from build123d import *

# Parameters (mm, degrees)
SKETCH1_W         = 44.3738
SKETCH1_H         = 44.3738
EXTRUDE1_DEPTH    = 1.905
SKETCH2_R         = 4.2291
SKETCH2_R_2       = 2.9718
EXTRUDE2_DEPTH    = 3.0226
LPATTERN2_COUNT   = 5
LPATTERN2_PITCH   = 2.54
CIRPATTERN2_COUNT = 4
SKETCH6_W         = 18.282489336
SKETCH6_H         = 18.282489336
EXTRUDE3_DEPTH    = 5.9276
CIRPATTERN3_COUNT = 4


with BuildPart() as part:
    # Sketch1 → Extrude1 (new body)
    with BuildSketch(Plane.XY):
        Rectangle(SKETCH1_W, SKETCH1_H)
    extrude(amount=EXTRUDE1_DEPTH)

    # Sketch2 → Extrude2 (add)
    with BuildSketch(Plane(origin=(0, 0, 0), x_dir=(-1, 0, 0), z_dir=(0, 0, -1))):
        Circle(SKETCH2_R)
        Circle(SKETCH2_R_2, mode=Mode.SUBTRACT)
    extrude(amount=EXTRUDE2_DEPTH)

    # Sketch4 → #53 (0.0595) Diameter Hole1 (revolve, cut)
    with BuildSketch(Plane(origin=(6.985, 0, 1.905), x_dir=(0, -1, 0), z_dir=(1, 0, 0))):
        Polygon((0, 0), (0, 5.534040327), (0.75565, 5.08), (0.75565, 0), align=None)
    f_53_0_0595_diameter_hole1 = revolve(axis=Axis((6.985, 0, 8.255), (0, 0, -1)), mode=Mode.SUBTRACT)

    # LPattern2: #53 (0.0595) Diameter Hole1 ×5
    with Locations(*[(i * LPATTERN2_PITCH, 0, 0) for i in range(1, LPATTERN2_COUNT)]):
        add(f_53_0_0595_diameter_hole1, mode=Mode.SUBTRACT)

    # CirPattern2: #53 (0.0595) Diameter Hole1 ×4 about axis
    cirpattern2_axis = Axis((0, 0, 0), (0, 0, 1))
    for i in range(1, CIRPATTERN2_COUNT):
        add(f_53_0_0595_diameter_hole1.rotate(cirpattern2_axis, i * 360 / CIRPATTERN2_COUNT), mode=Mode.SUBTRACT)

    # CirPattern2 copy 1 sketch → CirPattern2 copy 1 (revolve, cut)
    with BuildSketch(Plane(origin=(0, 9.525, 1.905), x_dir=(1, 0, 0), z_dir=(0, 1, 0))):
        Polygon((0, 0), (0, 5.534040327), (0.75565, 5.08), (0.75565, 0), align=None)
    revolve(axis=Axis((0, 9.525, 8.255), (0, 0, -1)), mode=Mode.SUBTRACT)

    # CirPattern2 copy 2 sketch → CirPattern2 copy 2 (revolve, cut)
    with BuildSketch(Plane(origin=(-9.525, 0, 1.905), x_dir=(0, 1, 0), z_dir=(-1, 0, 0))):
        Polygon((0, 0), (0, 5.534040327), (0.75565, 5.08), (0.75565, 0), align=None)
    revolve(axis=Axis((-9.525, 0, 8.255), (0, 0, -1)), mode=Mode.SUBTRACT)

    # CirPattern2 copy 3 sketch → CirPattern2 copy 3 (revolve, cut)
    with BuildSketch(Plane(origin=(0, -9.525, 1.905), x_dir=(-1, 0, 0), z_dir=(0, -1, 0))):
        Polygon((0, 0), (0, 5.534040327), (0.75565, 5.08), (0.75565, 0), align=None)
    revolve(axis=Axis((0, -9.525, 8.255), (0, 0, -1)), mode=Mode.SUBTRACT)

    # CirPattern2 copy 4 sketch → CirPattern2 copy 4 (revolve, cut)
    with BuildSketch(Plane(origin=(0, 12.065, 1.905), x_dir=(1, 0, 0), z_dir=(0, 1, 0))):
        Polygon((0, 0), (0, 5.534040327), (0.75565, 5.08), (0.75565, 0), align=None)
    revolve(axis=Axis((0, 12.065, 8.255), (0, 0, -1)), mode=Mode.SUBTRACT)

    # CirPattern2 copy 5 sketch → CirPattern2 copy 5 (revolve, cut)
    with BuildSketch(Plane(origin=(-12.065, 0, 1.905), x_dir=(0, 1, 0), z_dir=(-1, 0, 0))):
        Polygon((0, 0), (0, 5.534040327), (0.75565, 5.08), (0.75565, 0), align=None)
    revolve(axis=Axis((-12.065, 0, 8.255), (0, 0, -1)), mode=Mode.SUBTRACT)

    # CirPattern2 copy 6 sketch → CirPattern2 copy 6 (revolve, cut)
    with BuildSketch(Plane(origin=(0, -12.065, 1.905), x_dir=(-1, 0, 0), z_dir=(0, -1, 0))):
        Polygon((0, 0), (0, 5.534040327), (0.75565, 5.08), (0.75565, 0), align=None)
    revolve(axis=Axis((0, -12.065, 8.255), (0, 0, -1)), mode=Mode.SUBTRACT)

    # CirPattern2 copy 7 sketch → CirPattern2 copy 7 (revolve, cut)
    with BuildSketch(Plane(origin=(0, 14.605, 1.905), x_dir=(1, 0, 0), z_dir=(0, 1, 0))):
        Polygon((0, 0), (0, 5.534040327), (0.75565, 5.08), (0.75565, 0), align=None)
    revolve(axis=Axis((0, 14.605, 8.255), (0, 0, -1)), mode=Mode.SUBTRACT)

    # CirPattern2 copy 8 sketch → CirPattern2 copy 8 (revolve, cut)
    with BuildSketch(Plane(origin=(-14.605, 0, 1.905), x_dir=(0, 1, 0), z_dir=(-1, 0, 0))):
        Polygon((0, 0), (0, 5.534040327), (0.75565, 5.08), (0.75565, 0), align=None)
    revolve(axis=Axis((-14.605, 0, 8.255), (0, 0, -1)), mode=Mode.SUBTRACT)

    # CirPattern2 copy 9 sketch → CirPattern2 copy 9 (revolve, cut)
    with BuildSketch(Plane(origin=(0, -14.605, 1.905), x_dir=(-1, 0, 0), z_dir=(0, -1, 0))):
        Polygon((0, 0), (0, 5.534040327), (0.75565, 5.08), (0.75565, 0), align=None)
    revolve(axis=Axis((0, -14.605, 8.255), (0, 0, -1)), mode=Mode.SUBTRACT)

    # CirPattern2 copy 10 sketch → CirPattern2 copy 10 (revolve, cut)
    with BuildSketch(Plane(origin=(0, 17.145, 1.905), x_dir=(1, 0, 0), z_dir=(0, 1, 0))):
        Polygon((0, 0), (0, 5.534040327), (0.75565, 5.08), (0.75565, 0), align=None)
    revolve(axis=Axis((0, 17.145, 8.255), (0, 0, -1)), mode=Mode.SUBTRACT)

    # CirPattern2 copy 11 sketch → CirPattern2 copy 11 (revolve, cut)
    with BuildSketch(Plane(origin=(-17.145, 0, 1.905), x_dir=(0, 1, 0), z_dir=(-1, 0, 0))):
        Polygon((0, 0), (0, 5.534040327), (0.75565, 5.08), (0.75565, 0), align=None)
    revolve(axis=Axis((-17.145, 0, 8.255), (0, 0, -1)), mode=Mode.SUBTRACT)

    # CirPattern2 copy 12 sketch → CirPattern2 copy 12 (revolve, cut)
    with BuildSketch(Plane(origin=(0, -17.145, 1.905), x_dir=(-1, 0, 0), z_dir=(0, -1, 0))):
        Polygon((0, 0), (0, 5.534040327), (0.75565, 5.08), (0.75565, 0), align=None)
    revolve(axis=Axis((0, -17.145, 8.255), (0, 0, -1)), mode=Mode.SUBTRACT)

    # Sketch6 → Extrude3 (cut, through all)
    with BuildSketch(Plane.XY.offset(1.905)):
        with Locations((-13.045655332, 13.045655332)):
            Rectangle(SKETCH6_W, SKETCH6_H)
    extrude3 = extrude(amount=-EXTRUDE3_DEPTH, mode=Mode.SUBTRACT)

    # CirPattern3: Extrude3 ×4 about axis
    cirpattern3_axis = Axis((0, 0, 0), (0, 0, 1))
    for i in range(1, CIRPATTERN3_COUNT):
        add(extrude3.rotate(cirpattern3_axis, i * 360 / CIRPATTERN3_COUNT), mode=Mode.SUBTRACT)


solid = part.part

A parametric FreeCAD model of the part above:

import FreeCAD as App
import Part
import Sketcher

V = App.Vector
Q = App.Units.Quantity


def add_polygon(sketch, points):
    """Adds a closed chain of lines whose ends are joined by coincident constraints."""
    first, n = sketch.GeometryCount, len(points)
    for a, b in zip(points, points[1:] + points[:1]):
        sketch.addGeometry(Part.LineSegment(App.Vector(*a, 0), App.Vector(*b, 0)), False)
    for i in range(n):
        sketch.addConstraint(Sketcher.Constraint("Coincident", first + i, 2, first + (i + 1) % n, 1))

doc = App.newDocument("Part")
body = doc.addObject("PartDesign::Body", "Body")

# Sketch on XY plane
sketch1 = body.newObject("Sketcher::SketchObject", "Sketch")
sketch1.AttachmentSupport = (doc.getObject("XY_Plane"), [""])
sketch1.MapMode = "FlatFace"
add_polygon(sketch1, [(-22, 22), (-22, -22), (22, -22), (22, 22)])  # lines 0-3
sketch1.addConstraint([
    Sketcher.Constraint("Vertical", 0),
    Sketcher.Constraint("Horizontal", 1),
    Sketcher.Constraint("Vertical", 2),
    Sketcher.Constraint("Horizontal", 3),
    Sketcher.Constraint("Symmetric", 0, 2, 2, 2, -1, 1),
    Sketcher.Constraint("Equal", 3, 0),
    Sketcher.Constraint("DistanceX", 1, 1, 1, 2, Q("1.747 in")),
])
pad1 = body.newObject("PartDesign::Pad", "Pad")
pad1.Profile = sketch1
pad1.Length = Q("0.075 in")

# Sketch on XY plane
sketch2 = body.newObject("Sketcher::SketchObject", "Sketch001")
sketch2.AttachmentSupport = (doc.getObject("XY_Plane"), [""])
sketch2.MapMode = "FlatFace"
sketch2.addGeometry([
    Part.Circle(V(0, 0, 0), V(0, 0, 1), 4.2),
    Part.Circle(V(0, 0, 0), V(0, 0, 1), 3),
], False)
sketch2.addConstraint([
    Sketcher.Constraint("Coincident", 0, 3, -1, 1),
    Sketcher.Constraint("Coincident", 1, 3, -1, 1),
    Sketcher.Constraint("Diameter", 0, Q("0.333 in")),
    Sketcher.Constraint("Diameter", 1, Q("0.234 in")),
])
pad2 = body.newObject("PartDesign::Pad", "Pad001")
pad2.Profile = sketch2
pad2.Length = Q("0.119 in")
pad2.Reversed = True

# Sketch on YZ plane
sketch3 = body.newObject("Sketcher::SketchObject", "Sketch002")
sketch3.AttachmentSupport = (doc.getObject("YZ_Plane"), [""])
sketch3.MapMode = "FlatFace"
sketch3.AttachmentOffset = App.Placement(V(0, 0, 0.275 * 25.4), App.Rotation())
add_polygon(sketch3, [(0, -3.6), (0, 1.9), (-0.8, 1.9), (-0.8, -3.2)])  # lines 0-3
sketch3.addConstraint([
    Sketcher.Constraint("Vertical", 0),
    Sketcher.Constraint("Horizontal", 1),
    Sketcher.Constraint("Vertical", 2),
    Sketcher.Constraint("PointOnObject", 0, 2, -2),
    Sketcher.Constraint("DistanceY", 2, 2, 2, 1, Q("0.2 in")),
    Sketcher.Constraint("Angle", 3, Q("-31 deg")),
    Sketcher.Constraint("DistanceY", -1, 1, 0, 2, Q("0.075 in")),
    Sketcher.Constraint("DistanceX", 1, 2, 1, 1, Q("0.75565 mm")),
])
groove = body.newObject("PartDesign::Groove", "Groove")
groove.Profile = sketch3
groove.ReferenceAxis = (sketch3, ["V_Axis"])
groove.Angle = 360
doc.recompute()

linearpattern = body.newObject("PartDesign::LinearPattern", "LinearPattern")
linearpattern.Originals = [groove]
linearpattern.Direction = (doc.getObject("X_Axis"), [""])
linearpattern.Mode = "offset"
linearpattern.Offset = Q("0.1 in")
linearpattern.Occurrences = 5
body.Tip = linearpattern
doc.recompute()

polarpattern = body.newObject("PartDesign::PolarPattern", "PolarPattern")
polarpattern.Originals = [groove]
polarpattern.Axis = (doc.getObject("Z_Axis"), [""])
polarpattern.Angle = 360
polarpattern.Occurrences = 4
body.Tip = polarpattern

# Sketch on XZ plane
sketch4 = body.newObject("Sketcher::SketchObject", "Sketch003")
sketch4.AttachmentSupport = (doc.getObject("XZ_Plane"), [""])
sketch4.MapMode = "FlatFace"
sketch4.AttachmentOffset = App.Placement(V(0, 0, -0.375 * 25.4), App.Rotation())
add_polygon(sketch4, [(0, -3.6), (0, 1.9), (0.8, 1.9), (0.8, -3.2)])  # lines 0-3
sketch4.addConstraint([
    Sketcher.Constraint("Vertical", 0),
    Sketcher.Constraint("Horizontal", 1),
    Sketcher.Constraint("Vertical", 2),
    Sketcher.Constraint("PointOnObject", 0, 2, -2),
    Sketcher.Constraint("DistanceY", 2, 2, 2, 1, Q("0.2 in")),
    Sketcher.Constraint("Angle", 3, Q("-149 deg")),
    Sketcher.Constraint("DistanceY", -1, 1, 0, 2, Q("0.075 in")),
    Sketcher.Constraint("DistanceX", 1, 1, 1, 2, Q("0.75565 mm")),
])
groove2 = body.newObject("PartDesign::Groove", "Groove001")
groove2.Profile = sketch4
groove2.ReferenceAxis = (sketch4, ["V_Axis"])
groove2.Angle = 360

# Sketch on YZ plane
sketch5 = body.newObject("Sketcher::SketchObject", "Sketch004")
sketch5.AttachmentSupport = (doc.getObject("YZ_Plane"), [""])
sketch5.MapMode = "FlatFace"
sketch5.AttachmentOffset = App.Placement(V(0, 0, -0.375 * 25.4), App.Rotation())
add_polygon(sketch5, [(0, -3.6), (0, 1.9), (0.8, 1.9), (0.8, -3.2)])  # lines 0-3
sketch5.addConstraint([
    Sketcher.Constraint("Vertical", 0),
    Sketcher.Constraint("Horizontal", 1),
    Sketcher.Constraint("Vertical", 2),
    Sketcher.Constraint("PointOnObject", 0, 2, -2),
    Sketcher.Constraint("DistanceY", 2, 2, 2, 1, Q("0.2 in")),
    Sketcher.Constraint("Angle", 3, Q("-149 deg")),
    Sketcher.Constraint("DistanceY", -1, 1, 0, 2, Q("0.075 in")),
    Sketcher.Constraint("DistanceX", 1, 1, 1, 2, Q("0.75565 mm")),
])
groove3 = body.newObject("PartDesign::Groove", "Groove002")
groove3.Profile = sketch5
groove3.ReferenceAxis = (sketch5, ["V_Axis"])
groove3.Angle = 360

# Sketch on XZ plane
sketch6 = body.newObject("Sketcher::SketchObject", "Sketch005")
sketch6.AttachmentSupport = (doc.getObject("XZ_Plane"), [""])
sketch6.MapMode = "FlatFace"
sketch6.AttachmentOffset = App.Placement(V(0, 0, 0.375 * 25.4), App.Rotation())
add_polygon(sketch6, [(0, -3.6), (0, 1.9), (-0.8, 1.9), (-0.8, -3.2)])  # lines 0-3
sketch6.addConstraint([
    Sketcher.Constraint("Vertical", 0),
    Sketcher.Constraint("Horizontal", 1),
    Sketcher.Constraint("Vertical", 2),
    Sketcher.Constraint("PointOnObject", 0, 2, -2),
    Sketcher.Constraint("DistanceY", 2, 2, 2, 1, Q("0.2 in")),
    Sketcher.Constraint("Angle", 3, Q("-31 deg")),
    Sketcher.Constraint("DistanceY", -1, 1, 0, 2, Q("0.075 in")),
    Sketcher.Constraint("DistanceX", 1, 2, 1, 1, Q("0.75565 mm")),
])
groove4 = body.newObject("PartDesign::Groove", "Groove003")
groove4.Profile = sketch6
groove4.ReferenceAxis = (sketch6, ["V_Axis"])
groove4.Angle = 360

# Sketch on XZ plane
sketch7 = body.newObject("Sketcher::SketchObject", "Sketch006")
sketch7.AttachmentSupport = (doc.getObject("XZ_Plane"), [""])
sketch7.MapMode = "FlatFace"
sketch7.AttachmentOffset = App.Placement(V(0, 0, -0.475 * 25.4), App.Rotation())
add_polygon(sketch7, [(0, -3.6), (0, 1.9), (0.8, 1.9), (0.8, -3.2)])  # lines 0-3
sketch7.addConstraint([
    Sketcher.Constraint("Vertical", 0),
    Sketcher.Constraint("Horizontal", 1),
    Sketcher.Constraint("Vertical", 2),
    Sketcher.Constraint("PointOnObject", 0, 2, -2),
    Sketcher.Constraint("DistanceY", 2, 2, 2, 1, Q("0.2 in")),
    Sketcher.Constraint("Angle", 3, Q("-149 deg")),
    Sketcher.Constraint("DistanceY", -1, 1, 0, 2, Q("0.075 in")),
    Sketcher.Constraint("DistanceX", 1, 1, 1, 2, Q("0.75565 mm")),
])
groove5 = body.newObject("PartDesign::Groove", "Groove004")
groove5.Profile = sketch7
groove5.ReferenceAxis = (sketch7, ["V_Axis"])
groove5.Angle = 360

# Sketch on YZ plane
sketch8 = body.newObject("Sketcher::SketchObject", "Sketch007")
sketch8.AttachmentSupport = (doc.getObject("YZ_Plane"), [""])
sketch8.MapMode = "FlatFace"
sketch8.AttachmentOffset = App.Placement(V(0, 0, -0.475 * 25.4), App.Rotation())
add_polygon(sketch8, [(0, -3.6), (0, 1.9), (0.8, 1.9), (0.8, -3.2)])  # lines 0-3
sketch8.addConstraint([
    Sketcher.Constraint("Vertical", 0),
    Sketcher.Constraint("Horizontal", 1),
    Sketcher.Constraint("Vertical", 2),
    Sketcher.Constraint("PointOnObject", 0, 2, -2),
    Sketcher.Constraint("DistanceY", 2, 2, 2, 1, Q("0.2 in")),
    Sketcher.Constraint("Angle", 3, Q("-149 deg")),
    Sketcher.Constraint("DistanceY", -1, 1, 0, 2, Q("0.075 in")),
    Sketcher.Constraint("DistanceX", 1, 1, 1, 2, Q("0.75565 mm")),
])
groove6 = body.newObject("PartDesign::Groove", "Groove005")
groove6.Profile = sketch8
groove6.ReferenceAxis = (sketch8, ["V_Axis"])
groove6.Angle = 360

# Sketch on XZ plane
sketch9 = body.newObject("Sketcher::SketchObject", "Sketch008")
sketch9.AttachmentSupport = (doc.getObject("XZ_Plane"), [""])
sketch9.MapMode = "FlatFace"
sketch9.AttachmentOffset = App.Placement(V(0, 0, 0.475 * 25.4), App.Rotation())
add_polygon(sketch9, [(0, -3.6), (0, 1.9), (-0.8, 1.9), (-0.8, -3.2)])  # lines 0-3
sketch9.addConstraint([
    Sketcher.Constraint("Vertical", 0),
    Sketcher.Constraint("Horizontal", 1),
    Sketcher.Constraint("Vertical", 2),
    Sketcher.Constraint("PointOnObject", 0, 2, -2),
    Sketcher.Constraint("DistanceY", 2, 2, 2, 1, Q("0.2 in")),
    Sketcher.Constraint("Angle", 3, Q("-31 deg")),
    Sketcher.Constraint("DistanceY", -1, 1, 0, 2, Q("0.075 in")),
    Sketcher.Constraint("DistanceX", 1, 2, 1, 1, Q("0.75565 mm")),
])
groove7 = body.newObject("PartDesign::Groove", "Groove006")
groove7.Profile = sketch9
groove7.ReferenceAxis = (sketch9, ["V_Axis"])
groove7.Angle = 360

# Sketch on XZ plane
sketch10 = body.newObject("Sketcher::SketchObject", "Sketch009")
sketch10.AttachmentSupport = (doc.getObject("XZ_Plane"), [""])
sketch10.MapMode = "FlatFace"
sketch10.AttachmentOffset = App.Placement(V(0, 0, -0.575 * 25.4), App.Rotation())
add_polygon(sketch10, [(0, -3.6), (0, 1.9), (0.8, 1.9), (0.8, -3.2)])  # lines 0-3
sketch10.addConstraint([
    Sketcher.Constraint("Vertical", 0),
    Sketcher.Constraint("Horizontal", 1),
    Sketcher.Constraint("Vertical", 2),
    Sketcher.Constraint("PointOnObject", 0, 2, -2),
    Sketcher.Constraint("DistanceY", 2, 2, 2, 1, Q("0.2 in")),
    Sketcher.Constraint("Angle", 3, Q("-149 deg")),
    Sketcher.Constraint("DistanceY", -1, 1, 0, 2, Q("0.075 in")),
    Sketcher.Constraint("DistanceX", 1, 1, 1, 2, Q("0.75565 mm")),
])
groove8 = body.newObject("PartDesign::Groove", "Groove007")
groove8.Profile = sketch10
groove8.ReferenceAxis = (sketch10, ["V_Axis"])
groove8.Angle = 360

# Sketch on YZ plane
sketch11 = body.newObject("Sketcher::SketchObject", "Sketch010")
sketch11.AttachmentSupport = (doc.getObject("YZ_Plane"), [""])
sketch11.MapMode = "FlatFace"
sketch11.AttachmentOffset = App.Placement(V(0, 0, -0.575 * 25.4), App.Rotation())
add_polygon(sketch11, [(0, -3.6), (0, 1.9), (0.8, 1.9), (0.8, -3.2)])  # lines 0-3
sketch11.addConstraint([
    Sketcher.Constraint("Vertical", 0),
    Sketcher.Constraint("Horizontal", 1),
    Sketcher.Constraint("Vertical", 2),
    Sketcher.Constraint("PointOnObject", 0, 2, -2),
    Sketcher.Constraint("DistanceY", 2, 2, 2, 1, Q("0.2 in")),
    Sketcher.Constraint("Angle", 3, Q("-149 deg")),
    Sketcher.Constraint("DistanceY", -1, 1, 0, 2, Q("0.075 in")),
    Sketcher.Constraint("DistanceX", 1, 1, 1, 2, Q("0.75565 mm")),
])
groove9 = body.newObject("PartDesign::Groove", "Groove008")
groove9.Profile = sketch11
groove9.ReferenceAxis = (sketch11, ["V_Axis"])
groove9.Angle = 360

# Sketch on XZ plane
sketch12 = body.newObject("Sketcher::SketchObject", "Sketch011")
sketch12.AttachmentSupport = (doc.getObject("XZ_Plane"), [""])
sketch12.MapMode = "FlatFace"
sketch12.AttachmentOffset = App.Placement(V(0, 0, 0.575 * 25.4), App.Rotation())
add_polygon(sketch12, [(0, -3.6), (0, 1.9), (-0.8, 1.9), (-0.8, -3.2)])  # lines 0-3
sketch12.addConstraint([
    Sketcher.Constraint("Vertical", 0),
    Sketcher.Constraint("Horizontal", 1),
    Sketcher.Constraint("Vertical", 2),
    Sketcher.Constraint("PointOnObject", 0, 2, -2),
    Sketcher.Constraint("DistanceY", 2, 2, 2, 1, Q("0.2 in")),
    Sketcher.Constraint("Angle", 3, Q("-31 deg")),
    Sketcher.Constraint("DistanceY", -1, 1, 0, 2, Q("0.075 in")),
    Sketcher.Constraint("DistanceX", 1, 2, 1, 1, Q("0.75565 mm")),
])
groove10 = body.newObject("PartDesign::Groove", "Groove009")
groove10.Profile = sketch12
groove10.ReferenceAxis = (sketch12, ["V_Axis"])
groove10.Angle = 360

# Sketch on XZ plane
sketch13 = body.newObject("Sketcher::SketchObject", "Sketch012")
sketch13.AttachmentSupport = (doc.getObject("XZ_Plane"), [""])
sketch13.MapMode = "FlatFace"
sketch13.AttachmentOffset = App.Placement(V(0, 0, -0.675 * 25.4), App.Rotation())
add_polygon(sketch13, [(0, -3.6), (0, 1.9), (0.8, 1.9), (0.8, -3.2)])  # lines 0-3
sketch13.addConstraint([
    Sketcher.Constraint("Vertical", 0),
    Sketcher.Constraint("Horizontal", 1),
    Sketcher.Constraint("Vertical", 2),
    Sketcher.Constraint("PointOnObject", 0, 2, -2),
    Sketcher.Constraint("DistanceY", 2, 2, 2, 1, Q("0.2 in")),
    Sketcher.Constraint("Angle", 3, Q("-149 deg")),
    Sketcher.Constraint("DistanceY", -1, 1, 0, 2, Q("0.075 in")),
    Sketcher.Constraint("DistanceX", 1, 1, 1, 2, Q("0.75565 mm")),
])
groove11 = body.newObject("PartDesign::Groove", "Groove010")
groove11.Profile = sketch13
groove11.ReferenceAxis = (sketch13, ["V_Axis"])
groove11.Angle = 360

# Sketch on YZ plane
sketch14 = body.newObject("Sketcher::SketchObject", "Sketch013")
sketch14.AttachmentSupport = (doc.getObject("YZ_Plane"), [""])
sketch14.MapMode = "FlatFace"
sketch14.AttachmentOffset = App.Placement(V(0, 0, -0.675 * 25.4), App.Rotation())
add_polygon(sketch14, [(0, -3.6), (0, 1.9), (0.8, 1.9), (0.8, -3.2)])  # lines 0-3
sketch14.addConstraint([
    Sketcher.Constraint("Vertical", 0),
    Sketcher.Constraint("Horizontal", 1),
    Sketcher.Constraint("Vertical", 2),
    Sketcher.Constraint("PointOnObject", 0, 2, -2),
    Sketcher.Constraint("DistanceY", 2, 2, 2, 1, Q("0.2 in")),
    Sketcher.Constraint("Angle", 3, Q("-149 deg")),
    Sketcher.Constraint("DistanceY", -1, 1, 0, 2, Q("0.075 in")),
    Sketcher.Constraint("DistanceX", 1, 1, 1, 2, Q("0.75565 mm")),
])
groove12 = body.newObject("PartDesign::Groove", "Groove011")
groove12.Profile = sketch14
groove12.ReferenceAxis = (sketch14, ["V_Axis"])
groove12.Angle = 360

# Sketch on XZ plane
sketch15 = body.newObject("Sketcher::SketchObject", "Sketch014")
sketch15.AttachmentSupport = (doc.getObject("XZ_Plane"), [""])
sketch15.MapMode = "FlatFace"
sketch15.AttachmentOffset = App.Placement(V(0, 0, 0.675 * 25.4), App.Rotation())
add_polygon(sketch15, [(0, -3.6), (0, 1.9), (-0.8, 1.9), (-0.8, -3.2)])  # lines 0-3
sketch15.addConstraint([
    Sketcher.Constraint("Vertical", 0),
    Sketcher.Constraint("Horizontal", 1),
    Sketcher.Constraint("Vertical", 2),
    Sketcher.Constraint("PointOnObject", 0, 2, -2),
    Sketcher.Constraint("DistanceY", 2, 2, 2, 1, Q("0.2 in")),
    Sketcher.Constraint("Angle", 3, Q("-31 deg")),
    Sketcher.Constraint("DistanceY", -1, 1, 0, 2, Q("0.075 in")),
    Sketcher.Constraint("DistanceX", 1, 2, 1, 1, Q("0.75565 mm")),
])
groove13 = body.newObject("PartDesign::Groove", "Groove012")
groove13.Profile = sketch15
groove13.ReferenceAxis = (sketch15, ["V_Axis"])
groove13.Angle = 360

# Sketch on XY plane
sketch16 = body.newObject("Sketcher::SketchObject", "Sketch015")
sketch16.AttachmentSupport = (doc.getObject("XY_Plane"), [""])
sketch16.MapMode = "FlatFace"
sketch16.AttachmentOffset = App.Placement(V(0, 0, 0.075 * 25.4), App.Rotation())
add_polygon(sketch16, [(-22, 22), (-22, 4), (-4, 4), (-4, 22)])  # lines 0-3
sketch16.addConstraint([
    Sketcher.Constraint("Vertical", 0),
    Sketcher.Constraint("Horizontal", 1),
    Sketcher.Constraint("Vertical", 2),
    Sketcher.Constraint("Horizontal", 3),
    Sketcher.Constraint("Equal", 3, 0),
    Sketcher.Constraint("DistanceX", 0, 2, -1, 1, Q("0.8735 in")),
    Sketcher.Constraint("DistanceY", -1, 1, 2, 2, Q("0.8735 in")),
    Sketcher.Constraint("DistanceX", 1, 1, 1, 2, Q("18.282489 mm")),
])
pocket1 = body.newObject("PartDesign::Pocket", "Pocket")
pocket1.Profile = sketch16
pocket1.Type = "ThroughAll"
doc.recompute()

polarpattern2 = body.newObject("PartDesign::PolarPattern", "PolarPattern001")
polarpattern2.Originals = [pocket1]
polarpattern2.Axis = (doc.getObject("Z_Axis"), [""])
polarpattern2.Angle = 360
polarpattern2.Occurrences = 4
body.Tip = polarpattern2

doc.recompute()
